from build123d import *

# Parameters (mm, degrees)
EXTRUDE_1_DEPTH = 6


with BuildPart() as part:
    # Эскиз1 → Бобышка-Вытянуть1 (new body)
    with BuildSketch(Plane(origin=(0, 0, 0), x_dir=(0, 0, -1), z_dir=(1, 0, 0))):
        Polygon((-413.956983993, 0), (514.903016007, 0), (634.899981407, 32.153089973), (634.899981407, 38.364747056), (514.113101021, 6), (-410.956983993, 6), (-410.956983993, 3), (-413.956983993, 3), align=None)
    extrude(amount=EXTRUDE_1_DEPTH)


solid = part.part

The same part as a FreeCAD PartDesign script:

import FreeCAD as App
import Part
import Sketcher

V = App.Vector
Q = App.Units.Quantity

doc = App.newDocument("Part")
params = doc.addObject("Spreadsheet::Sheet", "Params")
for row, (alias, value) in enumerate([
    ("sketch1_width", "3 mm"),
    ("sketch1_height", "928.86 mm"),
    ("sketch1_length", "124.23 mm"),
    ("pad1_length", "6 mm"),
], start=1):
    params.set(f"A{row}", alias)
    params.set(f"B{row}", "=" + value)
    params.setAlias(f"B{row}", alias)

body = doc.addObject("PartDesign::Body", "Body")

sketch1 = doc.addObject("Sketcher::SketchObject", "Sketch")
body.addObject(sketch1)
sketch1.AttachmentSupport = (doc.YZ_Plane, [""])
sketch1.MapMode = "FlatFace"
sketch1.addGeometry([
    Part.LineSegment(V(0, 414, 0), V(0, -514.9, 0)),
    Part.LineSegment(V(0, -514.9, 0), V(32.2, -634.9, 0)),
    Part.LineSegment(V(32.2, -634.9, 0), V(38.4, -634.9, 0)),
    Part.LineSegment(V(38.4, -634.9, 0), V(6, -514.1, 0)),
    Part.LineSegment(V(6, -514.1, 0), V(6, 411, 0)),
    Part.LineSegment(V(6, 411, 0), V(3, 411, 0)),
    Part.LineSegment(V(3, 411, 0), V(3, 414, 0)),
    Part.LineSegment(V(3, 414, 0), V(0, 414, 0)),
], False)
sketch1.addConstraint([
    Sketcher.Constraint("Coincident", 0, 2, 1, 1),
    Sketcher.Constraint("Coincident", 1, 2, 2, 1),
    Sketcher.Constraint("Coincident", 2, 2, 3, 1),
    Sketcher.Constraint("Coincident", 3, 2, 4, 1),
    Sketcher.Constraint("Coincident", 4, 2, 5, 1),
    Sketcher.Constraint("Coincident", 5, 2, 6, 1),
    Sketcher.Constraint("Coincident", 6, 2, 7, 1),
    Sketcher.Constraint("Coincident", 7, 2, 0, 1),
    Sketcher.Constraint("Vertical", 0),
    Sketcher.Constraint("Horizontal", 2),
    Sketcher.Constraint("Vertical", 4),
    Sketcher.Constraint("Horizontal", 5),
    Sketcher.Constraint("Vertical", 6),
    Sketcher.Constraint("Horizontal", 7),
    Sketcher.Constraint("PointOnObject", 0, 2, -2),
    Sketcher.Constraint("Parallel", 1, 3),
    Sketcher.Constraint("Equal", 5, 7),
    Sketcher.Constraint("Equal", 7, 6),
    Sketcher.Constraint("DistanceX", 5, 2, 5, 1, Q("3 mm")),
    Sketcher.Constraint("Angle", 1, Q("-75 deg")),
    Sketcher.Constraint("DistanceY", 0, 2, 0, 1, Q("928.86 mm")),
    Sketcher.Constraint("Distance", 1, Q("124.23 mm")),
    Sketcher.Constraint("DistanceY", 3, 2, -1, 1, Q("514.113101 mm")),
    Sketcher.Constraint("Distance", 3, Q("125.04778 mm")),
])
sketch1.setExpression("Constraints[18]", "Params.sketch1_width")
sketch1.setExpression("Constraints[20]", "Params.sketch1_height")
sketch1.setExpression("Constraints[21]", "Params.sketch1_length")
pad1 = doc.addObject("PartDesign::Pad", "Pad")
body.addObject(pad1)
pad1.Profile = sketch1
pad1.setExpression("Length", "Params.pad1_length")

doc.recompute()
